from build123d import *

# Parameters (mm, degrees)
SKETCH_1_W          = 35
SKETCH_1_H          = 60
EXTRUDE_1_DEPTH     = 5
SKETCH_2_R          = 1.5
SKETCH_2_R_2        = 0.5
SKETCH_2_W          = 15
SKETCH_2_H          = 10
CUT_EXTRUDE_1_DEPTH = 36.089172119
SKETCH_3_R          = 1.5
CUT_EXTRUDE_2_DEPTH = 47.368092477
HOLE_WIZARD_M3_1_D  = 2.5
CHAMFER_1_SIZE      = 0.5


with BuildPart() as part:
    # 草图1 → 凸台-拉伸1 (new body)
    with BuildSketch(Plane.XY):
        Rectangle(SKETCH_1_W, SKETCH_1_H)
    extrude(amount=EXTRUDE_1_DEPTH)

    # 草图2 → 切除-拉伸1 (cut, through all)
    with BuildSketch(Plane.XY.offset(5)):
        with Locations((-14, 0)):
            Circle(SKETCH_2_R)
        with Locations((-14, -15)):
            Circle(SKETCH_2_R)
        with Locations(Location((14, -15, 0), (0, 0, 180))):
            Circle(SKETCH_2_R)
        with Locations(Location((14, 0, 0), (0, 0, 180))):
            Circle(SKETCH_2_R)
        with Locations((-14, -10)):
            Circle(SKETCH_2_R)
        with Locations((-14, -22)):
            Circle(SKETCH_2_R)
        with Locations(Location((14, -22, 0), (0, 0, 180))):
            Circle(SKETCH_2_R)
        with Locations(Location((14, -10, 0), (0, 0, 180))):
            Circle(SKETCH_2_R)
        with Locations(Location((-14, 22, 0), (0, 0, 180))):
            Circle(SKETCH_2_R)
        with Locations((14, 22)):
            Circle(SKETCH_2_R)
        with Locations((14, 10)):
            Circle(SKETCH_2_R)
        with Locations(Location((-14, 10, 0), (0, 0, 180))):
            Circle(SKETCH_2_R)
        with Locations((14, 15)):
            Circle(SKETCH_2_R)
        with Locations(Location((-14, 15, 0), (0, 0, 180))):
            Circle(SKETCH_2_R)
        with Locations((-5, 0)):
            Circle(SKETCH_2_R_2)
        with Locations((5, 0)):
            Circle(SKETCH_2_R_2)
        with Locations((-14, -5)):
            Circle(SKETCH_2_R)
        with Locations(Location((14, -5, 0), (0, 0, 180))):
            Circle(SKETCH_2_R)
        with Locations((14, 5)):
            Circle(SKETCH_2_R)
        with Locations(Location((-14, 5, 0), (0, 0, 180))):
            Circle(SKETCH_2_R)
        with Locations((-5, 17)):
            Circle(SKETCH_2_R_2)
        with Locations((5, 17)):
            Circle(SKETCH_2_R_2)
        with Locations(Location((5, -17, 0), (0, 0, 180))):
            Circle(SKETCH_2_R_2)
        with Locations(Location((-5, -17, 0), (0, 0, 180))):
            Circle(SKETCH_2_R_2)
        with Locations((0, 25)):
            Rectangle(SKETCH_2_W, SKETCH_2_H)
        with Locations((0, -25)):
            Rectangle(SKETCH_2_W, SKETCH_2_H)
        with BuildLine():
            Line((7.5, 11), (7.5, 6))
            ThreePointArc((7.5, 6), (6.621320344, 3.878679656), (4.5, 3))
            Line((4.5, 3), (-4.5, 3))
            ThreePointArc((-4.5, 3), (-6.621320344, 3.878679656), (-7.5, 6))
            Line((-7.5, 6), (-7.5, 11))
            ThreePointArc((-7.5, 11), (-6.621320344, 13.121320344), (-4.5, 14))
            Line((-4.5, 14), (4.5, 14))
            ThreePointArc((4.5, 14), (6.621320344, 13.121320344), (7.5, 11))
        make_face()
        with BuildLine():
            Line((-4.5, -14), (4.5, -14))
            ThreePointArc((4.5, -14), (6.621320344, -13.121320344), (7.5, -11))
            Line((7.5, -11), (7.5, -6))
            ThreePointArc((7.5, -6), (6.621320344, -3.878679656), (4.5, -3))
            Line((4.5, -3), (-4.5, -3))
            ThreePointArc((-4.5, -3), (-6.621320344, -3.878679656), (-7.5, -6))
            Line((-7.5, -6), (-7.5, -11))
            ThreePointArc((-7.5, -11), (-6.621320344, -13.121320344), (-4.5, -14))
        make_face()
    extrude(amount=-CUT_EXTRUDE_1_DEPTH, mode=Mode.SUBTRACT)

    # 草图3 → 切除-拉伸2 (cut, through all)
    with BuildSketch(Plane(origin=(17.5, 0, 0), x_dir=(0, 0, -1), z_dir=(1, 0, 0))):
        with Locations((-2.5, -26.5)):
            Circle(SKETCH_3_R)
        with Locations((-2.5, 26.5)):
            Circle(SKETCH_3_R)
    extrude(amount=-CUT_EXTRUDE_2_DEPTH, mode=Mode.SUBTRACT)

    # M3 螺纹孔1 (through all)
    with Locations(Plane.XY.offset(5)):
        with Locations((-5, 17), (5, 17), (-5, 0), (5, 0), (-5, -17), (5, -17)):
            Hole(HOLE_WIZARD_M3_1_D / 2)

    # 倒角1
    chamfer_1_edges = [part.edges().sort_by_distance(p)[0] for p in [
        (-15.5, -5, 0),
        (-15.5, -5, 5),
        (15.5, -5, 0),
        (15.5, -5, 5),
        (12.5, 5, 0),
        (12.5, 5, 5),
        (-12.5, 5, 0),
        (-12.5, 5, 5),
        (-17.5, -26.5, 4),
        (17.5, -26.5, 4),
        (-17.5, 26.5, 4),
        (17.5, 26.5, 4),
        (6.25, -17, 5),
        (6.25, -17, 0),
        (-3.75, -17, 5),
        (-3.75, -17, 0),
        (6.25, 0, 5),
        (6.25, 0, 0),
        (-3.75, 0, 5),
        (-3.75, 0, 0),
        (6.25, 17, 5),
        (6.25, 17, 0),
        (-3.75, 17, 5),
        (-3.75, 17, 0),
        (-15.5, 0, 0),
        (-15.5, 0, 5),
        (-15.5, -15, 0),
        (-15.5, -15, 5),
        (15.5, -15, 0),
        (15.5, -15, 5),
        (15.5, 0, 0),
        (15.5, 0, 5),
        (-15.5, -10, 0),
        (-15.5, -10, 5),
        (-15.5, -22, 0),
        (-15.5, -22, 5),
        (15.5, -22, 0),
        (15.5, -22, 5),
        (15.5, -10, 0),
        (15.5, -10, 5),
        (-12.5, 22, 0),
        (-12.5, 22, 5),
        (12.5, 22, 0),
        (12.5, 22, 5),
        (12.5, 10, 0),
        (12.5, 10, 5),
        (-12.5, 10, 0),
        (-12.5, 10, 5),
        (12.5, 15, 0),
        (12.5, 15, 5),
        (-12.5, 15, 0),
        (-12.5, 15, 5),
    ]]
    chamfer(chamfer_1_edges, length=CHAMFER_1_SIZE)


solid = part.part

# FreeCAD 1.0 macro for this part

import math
import FreeCAD as App
import Part
import Sketcher


def edges_at(feature, points):
    """Names of the edges that pass closest to the given points."""
    edges = feature.Shape.Edges
    near = lambda p: min(range(len(edges)), key=lambda i: edges[i].distToShape(Part.Vertex(*p))[0])
    return sorted({f"Edge{near(p) + 1}" for p in points})


def add_polygon(sketch, points):
    """Adds a closed chain of lines whose ends are joined by coincident constraints."""
    first, n = sketch.GeometryCount, len(points)
    for a, b in zip(points, points[1:] + points[:1]):
        sketch.addGeometry(Part.LineSegment(App.Vector(*a, 0), App.Vector(*b, 0)), False)
    for i in range(n):
        sketch.addConstraint(Sketcher.Constraint("Coincident", first + i, 2, first + (i + 1) % n, 1))

doc = App.newDocument("Part")
body = doc.addObject("PartDesign::Body", "Body")

sketch1 = body.newObject("Sketcher::SketchObject", "Sketch")
sketch1.AttachmentSupport = (doc.getObject("XY_Plane"), [""])
sketch1.MapMode = "FlatFace"
add_polygon(sketch1, [(-17.5, 30), (-17.5, -30), (17.5, -30), (17.5, 30)])
sketch1.addConstraint([
    Sketcher.Constraint("Vertical", 0),
    Sketcher.Constraint("Horizontal", 1),
    Sketcher.Constraint("Vertical", 2),
    Sketcher.Constraint("Horizontal", 3),
    Sketcher.Constraint("Symmetric", 0, 2, 2, 2, -1, 1),
    Sketcher.Constraint("DistanceX", 1, 1, 1, 2, 35.0),
    Sketcher.Constraint("DistanceY", 0, 2, 0, 1, 60.0),
])
pad1 = body.newObject("PartDesign::Pad", "Pad")
pad1.Profile = sketch1
pad1.Length = 5

sketch2 = body.newObject("Sketcher::SketchObject", "Sketch001")
sketch2.AttachmentSupport = (doc.getObject("XY_Plane"), [""])
sketch2.MapMode = "FlatFace"
sketch2.AttachmentOffset = App.Placement(App.Vector(0, 0, 5), App.Rotation())
sketch2.addGeometry(Part.Circle(App.Vector(-14, 0, 0), App.Vector(0, 0, 1), 1.5), False)
sketch2.addGeometry(Part.Circle(App.Vector(-14, -15, 0), App.Vector(0, 0, 1), 1.5), False)
sketch2.addGeometry(Part.Circle(App.Vector(14, -15, 0), App.Vector(0, 0, 1), 1.5), False)
sketch2.addGeometry(Part.Circle(App.Vector(14, 0, 0), App.Vector(0, 0, 1), 1.5), False)
sketch2.addGeometry(Part.Circle(App.Vector(-14, -10, 0), App.Vector(0, 0, 1), 1.5), False)
sketch2.addGeometry(Part.Circle(App.Vector(-14, -22, 0), App.Vector(0, 0, 1), 1.5), False)
sketch2.addGeometry(Part.Circle(App.Vector(14, -22, 0), App.Vector(0, 0, 1), 1.5), False)
sketch2.addGeometry(Part.Circle(App.Vector(14, -10, 0), App.Vector(0, 0, 1), 1.5), False)
sketch2.addGeometry(Part.Circle(App.Vector(-14, 22, 0), App.Vector(0, 0, 1), 1.5), False)
sketch2.addGeometry(Part.Circle(App.Vector(14, 22, 0), App.Vector(0, 0, 1), 1.5), False)
sketch2.addGeometry(Part.Circle(App.Vector(14, 10, 0), App.Vector(0, 0, 1), 1.5), False)
sketch2.addGeometry(Part.Circle(App.Vector(-14, 10, 0), App.Vector(0, 0, 1), 1.5), False)
sketch2.addGeometry(Part.Circle(App.Vector(14, 15, 0), App.Vector(0, 0, 1), 1.5), False)
sketch2.addGeometry(Part.Circle(App.Vector(-14, 15, 0), App.Vector(0, 0, 1), 1.5), False)
sketch2.addGeometry(Part.Circle(App.Vector(-5, 0, 0), App.Vector(0, 0, 1), 0.5), False)
sketch2.addGeometry(Part.Circle(App.Vector(5, 0, 0), App.Vector(0, 0, 1), 0.5), False)
sketch2.addGeometry(Part.Circle(App.Vector(-14, -5, 0), App.Vector(0, 0, 1), 1.5), False)
sketch2.addGeometry(Part.Circle(App.Vector(14, -5, 0), App.Vector(0, 0, 1), 1.5), False)
sketch2.addGeometry(Part.Circle(App.Vector(14, 5, 0), App.Vector(0, 0, 1), 1.5), False)
sketch2.addGeometry(Part.Circle(App.Vector(-14, 5, 0), App.Vector(0, 0, 1), 1.5), False)
sketch2.addGeometry(Part.Circle(App.Vector(-5, 17, 0), App.Vector(0, 0, 1), 0.5), False)
sketch2.addGeometry(Part.Circle(App.Vector(5, 17, 0), App.Vector(0, 0, 1), 0.5), False)
sketch2.addGeometry(Part.Circle(App.Vector(5, -17, 0), App.Vector(0, 0, 1), 0.5), False)
sketch2.addGeometry(Part.Circle(App.Vector(-5, -17, 0), App.Vector(0, 0, 1), 0.5), False)
add_polygon(sketch2, [(-7.5, 30), (-7.5, 20), (7.5, 20), (7.5, 30)])
add_polygon(sketch2, [(-7.5, -20), (-7.5, -30), (7.5, -30), (7.5, -20)])
sketch2.addGeometry(Part.LineSegment(App.Vector(7.5, 6, 0), App.Vector(7.5, 11, 0)), False)
sketch2.addGeometry(Part.ArcOfCircle(Part.Circle(App.Vector(4.5, 11, 0), App.Vector(0, 0, 1), 3), math.radians(0), math.radians(90)), False)
sketch2.addGeometry(Part.LineSegment(App.Vector(4.5, 14, 0), App.Vector(-4.5, 14, 0)), False)
sketch2.addGeometry(Part.ArcOfCircle(Part.Circle(App.Vector(-4.5, 11, 0), App.Vector(0, 0, 1), 3), math.radians(90), math.radians(180)), False)
sketch2.addGeometry(Part.LineSegment(App.Vector(-7.5, 11, 0), App.Vector(-7.5, 6, 0)), False)
sketch2.addGeometry(Part.ArcOfCircle(Part.Circle(App.Vector(-4.5, 6, 0), App.Vector(0, 0, 1), 3), math.radians(180), math.radians(270)), False)
sketch2.addGeometry(Part.LineSegment(App.Vector(-4.5, 3, 0), App.Vector(4.5, 3, 0)), False)
sketch2.addGeometry(Part.ArcOfCircle(Part.Circle(App.Vector(4.5, 6, 0), App.Vector(0, 0, 1), 3), math.radians(-90), math.radians(0)), False)
sketch2.addGeometry(Part.LineSegment(App.Vector(-4.5, -14, 0), App.Vector(4.5, -14, 0)), False)
sketch2.addGeometry(Part.ArcOfCircle(Part.Circle(App.Vector(4.5, -11, 0), App.Vector(0, 0, 1), 3), math.radians(-90), math.radians(0)), False)
sketch2.addGeometry(Part.LineSegment(App.Vector(7.5, -11, 0), App.Vector(7.5, -6, 0)), False)
sketch2.addGeometry(Part.ArcOfCircle(Part.Circle(App.Vector(4.5, -6, 0), App.Vector(0, 0, 1), 3), math.radians(0), math.radians(90)), False)
sketch2.addGeometry(Part.LineSegment(App.Vector(4.5, -3, 0), App.Vector(-4.5, -3, 0)), False)
sketch2.addGeometry(Part.ArcOfCircle(Part.Circle(App.Vector(-4.5, -6, 0), App.Vector(0, 0, 1), 3), math.radians(90), math.radians(180)), False)
sketch2.addGeometry(Part.LineSegment(App.Vector(-7.5, -6, 0), App.Vector(-7.5, -11, 0)), False)
sketch2.addGeometry(Part.ArcOfCircle(Part.Circle(App.Vector(-4.5, -11, 0), App.Vector(0, 0, 1), 3), math.radians(180), math.radians(270)), False)
sketch2.addConstraint([
    Sketcher.Constraint("Tangent", 32, 2, 33, 1),
    Sketcher.Constraint("Tangent", 33, 2, 34, 1),
    Sketcher.Constraint("Tangent", 34, 2, 35, 1),
    Sketcher.Constraint("Tangent", 35, 2, 36, 1),
    Sketcher.Constraint("Tangent", 36, 2, 37, 1),
    Sketcher.Constraint("Tangent", 37, 2, 38, 1),
    Sketcher.Constraint("Tangent", 38, 2, 39, 1),
    Sketcher.Constraint("Tangent", 39, 2, 32, 1),
    Sketcher.Constraint("Tangent", 40, 2, 41, 1),
    Sketcher.Constraint("Tangent", 41, 2, 42, 1),
    Sketcher.Constraint("Tangent", 42, 2, 43, 1),
    Sketcher.Constraint("Tangent", 43, 2, 44, 1),
    Sketcher.Constraint("Tangent", 44, 2, 45, 1),
    Sketcher.Constraint("Tangent", 45, 2, 46, 1),
    Sketcher.Constraint("Tangent", 46, 2, 47, 1),
    Sketcher.Constraint("Tangent", 47, 2, 40, 1),
    Sketcher.Constraint("Vertical", 24),
    Sketcher.Constraint("Horizontal", 25),
    Sketcher.Constraint("Vertical", 26),
    Sketcher.Constraint("Horizontal", 27),
    Sketcher.Constraint("Vertical", 28),
    Sketcher.Constraint("Horizontal", 29),
    Sketcher.Constraint("Vertical", 30),
    Sketcher.Constraint("Horizontal", 31),
    Sketcher.Constraint("Vertical", 32),
    Sketcher.Constraint("Horizontal", 34),
    Sketcher.Constraint("Vertical", 36),
    Sketcher.Constraint("Horizontal", 38),
    Sketcher.Constraint("Horizontal", 40),
    Sketcher.Constraint("Vertical", 42),
    Sketcher.Constraint("Horizontal", 44),
    Sketcher.Constraint("Vertical", 46),
    Sketcher.Constraint("Equal", 0, 1),
    Sketcher.Constraint("Equal", 1, 2),
    Sketcher.Constraint("Equal", 2, 3),
    Sketcher.Constraint("Equal", 3, 4),
    Sketcher.Constraint("Equal", 4, 5),
    Sketcher.Constraint("Equal", 5, 6),
    Sketcher.Constraint("Equal", 6, 7),
    Sketcher.Constraint("Equal", 7, 8),
    Sketcher.Constraint("Equal", 8, 9),
    Sketcher.Constraint("Equal", 9, 10),
    Sketcher.Constraint("Equal", 10, 11),
    Sketcher.Constraint("Equal", 11, 12),
    Sketcher.Constraint("Equal", 12, 13),
    Sketcher.Constraint("Equal", 14, 15),
    Sketcher.Constraint("Equal", 13, 16),
    Sketcher.Constraint("Equal", 16, 17),
    Sketcher.Constraint("Equal", 17, 18),
    Sketcher.Constraint("Equal", 18, 19),
    Sketcher.Constraint("Equal", 15, 20),
    Sketcher.Constraint("Equal", 20, 21),
    Sketcher.Constraint("Equal", 21, 22),
    Sketcher.Constraint("Equal", 22, 23),
    Sketcher.Constraint("Equal", 33, 35),
    Sketcher.Constraint("Equal", 35, 37),
    Sketcher.Constraint("Equal", 37, 39),
    Sketcher.Constraint("Equal", 39, 41),
    Sketcher.Constraint("Equal", 41, 43),
    Sketcher.Constraint("Equal", 43, 45),
    Sketcher.Constraint("Equal", 45, 47),
    Sketcher.Constraint("Symmetric", 0, 3, 3, 3, -1, 1),
    Sketcher.Constraint("Symmetric", 6, 3, 8, 3, -1, 1),
    Sketcher.Constraint("Symmetric", 5, 3, 9, 3, -1, 1),
    Sketcher.Constraint("Symmetric", 4, 3, 10, 3, -1, 1),
    Sketcher.Constraint("Symmetric", 7, 3, 11, 3, -1, 1),
    Sketcher.Constraint("Symmetric", 1, 3, 12, 3, -1, 1),
    Sketcher.Constraint("Symmetric", 2, 3, 13, 3, -1, 1),
    Sketcher.Constraint("Symmetric", 14, 3, 15, 3, -1, 1),
    Sketcher.Constraint("Symmetric", 16, 3, 18, 3, -1, 1),
    Sketcher.Constraint("Symmetric", 17, 3, 19, 3, -1, 1),
    Sketcher.Constraint("Symmetric", 20, 3, 22, 3, -1, 1),
    Sketcher.Constraint("Symmetric", 21, 3, 23, 3, -1, 1),
    Sketcher.Constraint("Symmetric", 35, 3, 41, 3, -1, 1),
    Sketcher.Constraint("Symmetric", 39, 3, 45, 3, -1, 1),
    Sketcher.Constraint("Symmetric", 26, 2, 28, 2, -1, 1),
    Sketcher.Constraint("Symmetric", 24, 2, 30, 2, -1, 1),
    Sketcher.Constraint("Symmetric", 1, 3, 2, 3, -2),
    Sketcher.Constraint("Symmetric", 5, 3, 6, 3, -2),
    Sketcher.Constraint("Symmetric", 4, 3, 7, 3, -2),
    Sketcher.Constraint("Symmetric", 16, 3, 17, 3, -2),
    Sketcher.Constraint("Symmetric", 20, 3, 21, 3, -2),
    Sketcher.Constraint("PointOnObject", 0, 3, -1),
    Sketcher.Constraint("PointOnObject", 14, 3, -1),
    Sketcher.Constraint("Vertical", 0, 3, 1, 3),
    Sketcher.Constraint("Vertical", 1, 3, 4, 3),
    Sketcher.Constraint("Vertical", 4, 3, 5, 3),
    Sketcher.Constraint("Vertical", 13, 3, 16, 3),
    Sketcher.Constraint("Vertical", 14, 3, 20, 3),
    Sketcher.Constraint("Vertical", 39, 3, 41, 3),
    Sketcher.Constraint("Vertical", 27, 2, 28, 2),
    Sketcher.Constraint("Vertical", 30, 2, 32, 2),
    Sketcher.Constraint("Diameter", 0, 3.0),
    Sketcher.Constraint("Diameter", 14, 1.0),
    Sketcher.Constraint("Radius", 33, 3.0),
    Sketcher.Constraint("DistanceX", 25, 1, 25, 2, 15.0),
    Sketcher.Constraint("DistanceY", 24, 2, 24, 1, 10.0),
    Sketcher.Constraint("DistanceY", 32, 1, 32, 2, 5.0),
    Sketcher.Constraint("DistanceX", 0, 3, -1, 1, 14.0),
    Sketcher.Constraint("DistanceY", 1, 3, -1, 1, 15.0),
    Sketcher.Constraint("DistanceY", 4, 3, -1, 1, 10.0),
    Sketcher.Constraint("DistanceY", 5, 3, -1, 1, 22.0),
    Sketcher.Constraint("DistanceX", 14, 3, -1, 1, 5.0),
    Sketcher.Constraint("DistanceY", 16, 3, -1, 1, 5.0),
    Sketcher.Constraint("DistanceY", -1, 1, 20, 3, 17.0),
    Sketcher.Constraint("DistanceY", -1, 1, 33, 3, 11.0),
    Sketcher.Constraint("DistanceY", -1, 1, 24, 2, 20.0),
])
pocket1 = body.newObject("PartDesign::Pocket", "Pocket")
pocket1.Profile = sketch2
pocket1.Type = "ThroughAll"

sketch3 = body.newObject("Sketcher::SketchObject", "Sketch002")
sketch3.AttachmentSupport = (doc.getObject("YZ_Plane"), [""])
sketch3.MapMode = "FlatFace"
sketch3.AttachmentOffset = App.Placement(App.Vector(0, 0, 17.5), App.Rotation())
sketch3.addGeometry([
    Part.Circle(App.Vector(-26.5, 2.5, 0), App.Vector(0, 0, 1), 1.5),
    Part.Circle(App.Vector(26.5, 2.5, 0), App.Vector(0, 0, 1), 1.5),
], False)
sketch3.addConstraint([
    Sketcher.Constraint("Equal", 0, 1),
    Sketcher.Constraint("Symmetric", 0, 3, 1, 3, -2),
    Sketcher.Constraint("Diameter", 0, 3.0),
    Sketcher.Constraint("DistanceX", 0, 3, 1, 3, 53.0),
    Sketcher.Constraint("DistanceY", -1, 1, 0, 3, 2.5),
])
pocket2 = body.newObject("PartDesign::Pocket", "Pocket001")
pocket2.Profile = sketch3
pocket2.Type = "ThroughAll"

sketch4 = body.newObject("Sketcher::SketchObject", "Sketch003")
sketch4.AttachmentSupport = (doc.getObject("XY_Plane"), [""])
sketch4.MapMode = "FlatFace"
sketch4.AttachmentOffset = App.Placement(App.Vector(0, 0, 5), App.Rotation())
sketch4.addGeometry([
    Part.Circle(App.Vector(-5, 17, 0), App.Vector(0, 0, 1), 1.25),
    Part.Circle(App.Vector(5, 17, 0), App.Vector(0, 0, 1), 1.25),
    Part.Circle(App.Vector(-5, 0, 0), App.Vector(0, 0, 1), 1.25),
    Part.Circle(App.Vector(5, 0, 0), App.Vector(0, 0, 1), 1.25),
    Part.Circle(App.Vector(-5, -17, 0), App.Vector(0, 0, 1), 1.25),
    Part.Circle(App.Vector(5, -17, 0), App.Vector(0, 0, 1), 1.25),
], False)
sketch4.addConstraint([
    Sketcher.Constraint("Equal", 0, 1),
    Sketcher.Constraint("Equal", 1, 2),
    Sketcher.Constraint("Equal", 2, 3),
    Sketcher.Constraint("Equal", 3, 4),
    Sketcher.Constraint("Equal", 4, 5),
    Sketcher.Constraint("Symmetric", 2, 3, 3, 3, -1, 1),
    Sketcher.Constraint("Symmetric", 1, 3, 4, 3, -1, 1),
    Sketcher.Constraint("Symmetric", 0, 3, 5, 3, -1, 1),
    Sketcher.Constraint("Symmetric", 0, 3, 1, 3, -2),
    Sketcher.Constraint("PointOnObject", 2, 3, -1),
    Sketcher.Constraint("Vertical", 0, 3, 2, 3),
    Sketcher.Constraint("Diameter", 0, 2.5),
    Sketcher.Constraint("DistanceX", 0, 3, -1, 1, 5.0),
    Sketcher.Constraint("DistanceY", -1, 1, 0, 3, 17.0),
])
doc.recompute()
hole = body.newObject("PartDesign::Hole", "Hole")
hole.Profile = sketch4
hole.ThreadType = "None"
hole.Diameter = 2.5
hole.DepthType = "ThroughAll"
doc.recompute()

chamfer = body.newObject("PartDesign::Chamfer", "Chamfer")
chamfer.Base = (hole, edges_at(hole, [
    (-15.5, -5, 0),
    (-15.5, -5, 5),
    (15.5, -5, 0),
    (15.5, -5, 5),
    (12.5, 5, 0),
    (12.5, 5, 5),
    (-12.5, 5, 0),
    (-12.5, 5, 5),
    (-17.5, -26.5, 4),
    (17.5, -26.5, 4),
    (-17.5, 26.5, 4),
    (17.5, 26.5, 4),
    (6.25, -17, 5),
    (6.25, -17, 0),
    (-3.75, -17, 5),
    (-3.75, -17, 0),
    (6.25, 0, 5),
    (6.25, 0, 0),
    (-3.75, 0, 5),
    (-3.75, 0, 0),
    (6.25, 17, 5),
    (6.25, 17, 0),
    (-3.75, 17, 5),
    (-3.75, 17, 0),
    (-15.5, 0, 0),
    (-15.5, 0, 5),
    (-15.5, -15, 0),
    (-15.5, -15, 5),
    (15.5, -15, 0),
    (15.5, -15, 5),
    (15.5, 0, 0),
    (15.5, 0, 5),
    (-15.5, -10, 0),
    (-15.5, -10, 5),
    (-15.5, -22, 0),
    (-15.5, -22, 5),
    (15.5, -22, 0),
    (15.5, -22, 5),
    (15.5, -10, 0),
    (15.5, -10, 5),
    (-12.5, 22, 0),
    (-12.5, 22, 5),
    (12.5, 22, 0),
    (12.5, 22, 5),
    (12.5, 10, 0),
    (12.5, 10, 5),
    (-12.5, 10, 0),
    (-12.5, 10, 5),
    (12.5, 15, 0),
    (12.5, 15, 5),
    (-12.5, 15, 0),
    (-12.5, 15, 5),
]))
chamfer.Size = 0.5

doc.recompute()
